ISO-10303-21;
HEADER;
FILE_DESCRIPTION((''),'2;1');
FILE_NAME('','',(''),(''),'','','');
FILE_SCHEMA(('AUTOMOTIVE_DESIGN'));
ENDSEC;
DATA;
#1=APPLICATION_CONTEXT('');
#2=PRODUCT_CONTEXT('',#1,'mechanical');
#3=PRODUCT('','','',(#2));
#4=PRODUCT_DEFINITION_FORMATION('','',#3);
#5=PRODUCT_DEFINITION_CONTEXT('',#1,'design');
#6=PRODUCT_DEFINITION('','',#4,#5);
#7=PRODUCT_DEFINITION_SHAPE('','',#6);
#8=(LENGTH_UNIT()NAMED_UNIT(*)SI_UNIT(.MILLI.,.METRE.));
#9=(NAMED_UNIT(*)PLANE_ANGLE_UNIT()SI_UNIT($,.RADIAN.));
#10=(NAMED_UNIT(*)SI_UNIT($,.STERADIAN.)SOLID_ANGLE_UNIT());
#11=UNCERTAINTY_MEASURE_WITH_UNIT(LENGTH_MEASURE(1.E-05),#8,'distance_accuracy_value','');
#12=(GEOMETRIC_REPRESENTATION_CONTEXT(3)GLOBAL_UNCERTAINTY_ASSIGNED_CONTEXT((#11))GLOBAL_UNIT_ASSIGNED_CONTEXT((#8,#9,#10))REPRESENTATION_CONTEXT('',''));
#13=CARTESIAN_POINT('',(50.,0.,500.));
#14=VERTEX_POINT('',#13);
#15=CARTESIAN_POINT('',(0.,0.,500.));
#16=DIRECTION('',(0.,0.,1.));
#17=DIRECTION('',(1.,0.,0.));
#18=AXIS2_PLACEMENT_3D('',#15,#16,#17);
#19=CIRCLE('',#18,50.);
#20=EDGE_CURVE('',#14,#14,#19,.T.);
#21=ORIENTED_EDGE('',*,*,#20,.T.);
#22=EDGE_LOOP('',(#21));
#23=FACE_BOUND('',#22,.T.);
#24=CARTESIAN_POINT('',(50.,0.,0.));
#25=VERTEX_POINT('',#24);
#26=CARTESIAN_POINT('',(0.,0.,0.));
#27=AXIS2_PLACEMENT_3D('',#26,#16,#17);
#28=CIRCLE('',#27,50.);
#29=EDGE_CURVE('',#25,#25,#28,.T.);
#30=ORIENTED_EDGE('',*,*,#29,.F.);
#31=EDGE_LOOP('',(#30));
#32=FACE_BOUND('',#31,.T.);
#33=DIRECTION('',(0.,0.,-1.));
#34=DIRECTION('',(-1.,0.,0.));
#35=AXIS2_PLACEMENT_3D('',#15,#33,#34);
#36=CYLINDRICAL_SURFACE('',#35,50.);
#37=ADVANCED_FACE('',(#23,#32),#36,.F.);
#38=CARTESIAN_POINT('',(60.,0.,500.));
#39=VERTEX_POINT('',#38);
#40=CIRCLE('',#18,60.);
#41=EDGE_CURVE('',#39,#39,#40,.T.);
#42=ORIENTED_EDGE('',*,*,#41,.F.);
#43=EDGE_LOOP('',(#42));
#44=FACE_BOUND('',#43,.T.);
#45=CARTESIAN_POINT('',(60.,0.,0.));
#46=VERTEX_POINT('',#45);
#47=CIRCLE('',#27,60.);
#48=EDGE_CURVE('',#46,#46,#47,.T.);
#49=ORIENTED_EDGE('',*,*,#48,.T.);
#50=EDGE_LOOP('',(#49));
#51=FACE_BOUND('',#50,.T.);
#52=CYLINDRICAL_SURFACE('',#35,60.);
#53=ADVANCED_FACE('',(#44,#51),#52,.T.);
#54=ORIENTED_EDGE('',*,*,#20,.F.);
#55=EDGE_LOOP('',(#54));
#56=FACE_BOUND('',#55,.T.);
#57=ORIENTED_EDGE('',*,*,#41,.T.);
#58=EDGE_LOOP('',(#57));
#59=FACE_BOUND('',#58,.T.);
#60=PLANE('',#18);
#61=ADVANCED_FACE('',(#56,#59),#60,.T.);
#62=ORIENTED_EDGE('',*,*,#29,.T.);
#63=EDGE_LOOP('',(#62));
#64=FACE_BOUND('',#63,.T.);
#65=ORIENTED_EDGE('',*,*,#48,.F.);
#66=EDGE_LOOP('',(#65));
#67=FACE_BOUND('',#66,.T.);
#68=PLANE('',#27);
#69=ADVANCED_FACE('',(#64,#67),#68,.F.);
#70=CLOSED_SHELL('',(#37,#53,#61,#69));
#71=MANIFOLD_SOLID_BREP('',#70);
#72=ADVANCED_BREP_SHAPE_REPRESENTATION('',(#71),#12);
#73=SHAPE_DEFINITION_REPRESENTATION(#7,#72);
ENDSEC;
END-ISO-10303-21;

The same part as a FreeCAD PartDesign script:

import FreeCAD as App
import Part
import Sketcher

V = App.Vector
Q = App.Units.Quantity

doc = App.newDocument("Part")
body = doc.addObject("PartDesign::Body", "Body")

# Sketch on XY plane
sketch1 = body.newObject("Sketcher::SketchObject", "Sketch")
sketch1.AttachmentSupport = (doc.getObject("XY_Plane"), [""])
sketch1.MapMode = "FlatFace"
sketch1.addGeometry(Part.Circle(V(0, 0, 0), V(0, 0, 1), 60), False)
sketch1.addGeometry(Part.Circle(V(0, 0, 0), V(0, 0, 1), 50), False)
sketch1.addConstraint(Sketcher.Constraint("Coincident", 0, 3, -1, 1))
sketch1.addConstraint(Sketcher.Constraint("Coincident", 1, 3, -1, 1))
sketch1.addConstraint(Sketcher.Constraint("Diameter", 0, Q("120 mm")))
sketch1.addConstraint(Sketcher.Constraint("Diameter", 1, Q("100 mm")))
pad1 = body.newObject("PartDesign::Pad", "Pad")
pad1.Profile = sketch1
pad1.Length = 500

doc.recompute()
